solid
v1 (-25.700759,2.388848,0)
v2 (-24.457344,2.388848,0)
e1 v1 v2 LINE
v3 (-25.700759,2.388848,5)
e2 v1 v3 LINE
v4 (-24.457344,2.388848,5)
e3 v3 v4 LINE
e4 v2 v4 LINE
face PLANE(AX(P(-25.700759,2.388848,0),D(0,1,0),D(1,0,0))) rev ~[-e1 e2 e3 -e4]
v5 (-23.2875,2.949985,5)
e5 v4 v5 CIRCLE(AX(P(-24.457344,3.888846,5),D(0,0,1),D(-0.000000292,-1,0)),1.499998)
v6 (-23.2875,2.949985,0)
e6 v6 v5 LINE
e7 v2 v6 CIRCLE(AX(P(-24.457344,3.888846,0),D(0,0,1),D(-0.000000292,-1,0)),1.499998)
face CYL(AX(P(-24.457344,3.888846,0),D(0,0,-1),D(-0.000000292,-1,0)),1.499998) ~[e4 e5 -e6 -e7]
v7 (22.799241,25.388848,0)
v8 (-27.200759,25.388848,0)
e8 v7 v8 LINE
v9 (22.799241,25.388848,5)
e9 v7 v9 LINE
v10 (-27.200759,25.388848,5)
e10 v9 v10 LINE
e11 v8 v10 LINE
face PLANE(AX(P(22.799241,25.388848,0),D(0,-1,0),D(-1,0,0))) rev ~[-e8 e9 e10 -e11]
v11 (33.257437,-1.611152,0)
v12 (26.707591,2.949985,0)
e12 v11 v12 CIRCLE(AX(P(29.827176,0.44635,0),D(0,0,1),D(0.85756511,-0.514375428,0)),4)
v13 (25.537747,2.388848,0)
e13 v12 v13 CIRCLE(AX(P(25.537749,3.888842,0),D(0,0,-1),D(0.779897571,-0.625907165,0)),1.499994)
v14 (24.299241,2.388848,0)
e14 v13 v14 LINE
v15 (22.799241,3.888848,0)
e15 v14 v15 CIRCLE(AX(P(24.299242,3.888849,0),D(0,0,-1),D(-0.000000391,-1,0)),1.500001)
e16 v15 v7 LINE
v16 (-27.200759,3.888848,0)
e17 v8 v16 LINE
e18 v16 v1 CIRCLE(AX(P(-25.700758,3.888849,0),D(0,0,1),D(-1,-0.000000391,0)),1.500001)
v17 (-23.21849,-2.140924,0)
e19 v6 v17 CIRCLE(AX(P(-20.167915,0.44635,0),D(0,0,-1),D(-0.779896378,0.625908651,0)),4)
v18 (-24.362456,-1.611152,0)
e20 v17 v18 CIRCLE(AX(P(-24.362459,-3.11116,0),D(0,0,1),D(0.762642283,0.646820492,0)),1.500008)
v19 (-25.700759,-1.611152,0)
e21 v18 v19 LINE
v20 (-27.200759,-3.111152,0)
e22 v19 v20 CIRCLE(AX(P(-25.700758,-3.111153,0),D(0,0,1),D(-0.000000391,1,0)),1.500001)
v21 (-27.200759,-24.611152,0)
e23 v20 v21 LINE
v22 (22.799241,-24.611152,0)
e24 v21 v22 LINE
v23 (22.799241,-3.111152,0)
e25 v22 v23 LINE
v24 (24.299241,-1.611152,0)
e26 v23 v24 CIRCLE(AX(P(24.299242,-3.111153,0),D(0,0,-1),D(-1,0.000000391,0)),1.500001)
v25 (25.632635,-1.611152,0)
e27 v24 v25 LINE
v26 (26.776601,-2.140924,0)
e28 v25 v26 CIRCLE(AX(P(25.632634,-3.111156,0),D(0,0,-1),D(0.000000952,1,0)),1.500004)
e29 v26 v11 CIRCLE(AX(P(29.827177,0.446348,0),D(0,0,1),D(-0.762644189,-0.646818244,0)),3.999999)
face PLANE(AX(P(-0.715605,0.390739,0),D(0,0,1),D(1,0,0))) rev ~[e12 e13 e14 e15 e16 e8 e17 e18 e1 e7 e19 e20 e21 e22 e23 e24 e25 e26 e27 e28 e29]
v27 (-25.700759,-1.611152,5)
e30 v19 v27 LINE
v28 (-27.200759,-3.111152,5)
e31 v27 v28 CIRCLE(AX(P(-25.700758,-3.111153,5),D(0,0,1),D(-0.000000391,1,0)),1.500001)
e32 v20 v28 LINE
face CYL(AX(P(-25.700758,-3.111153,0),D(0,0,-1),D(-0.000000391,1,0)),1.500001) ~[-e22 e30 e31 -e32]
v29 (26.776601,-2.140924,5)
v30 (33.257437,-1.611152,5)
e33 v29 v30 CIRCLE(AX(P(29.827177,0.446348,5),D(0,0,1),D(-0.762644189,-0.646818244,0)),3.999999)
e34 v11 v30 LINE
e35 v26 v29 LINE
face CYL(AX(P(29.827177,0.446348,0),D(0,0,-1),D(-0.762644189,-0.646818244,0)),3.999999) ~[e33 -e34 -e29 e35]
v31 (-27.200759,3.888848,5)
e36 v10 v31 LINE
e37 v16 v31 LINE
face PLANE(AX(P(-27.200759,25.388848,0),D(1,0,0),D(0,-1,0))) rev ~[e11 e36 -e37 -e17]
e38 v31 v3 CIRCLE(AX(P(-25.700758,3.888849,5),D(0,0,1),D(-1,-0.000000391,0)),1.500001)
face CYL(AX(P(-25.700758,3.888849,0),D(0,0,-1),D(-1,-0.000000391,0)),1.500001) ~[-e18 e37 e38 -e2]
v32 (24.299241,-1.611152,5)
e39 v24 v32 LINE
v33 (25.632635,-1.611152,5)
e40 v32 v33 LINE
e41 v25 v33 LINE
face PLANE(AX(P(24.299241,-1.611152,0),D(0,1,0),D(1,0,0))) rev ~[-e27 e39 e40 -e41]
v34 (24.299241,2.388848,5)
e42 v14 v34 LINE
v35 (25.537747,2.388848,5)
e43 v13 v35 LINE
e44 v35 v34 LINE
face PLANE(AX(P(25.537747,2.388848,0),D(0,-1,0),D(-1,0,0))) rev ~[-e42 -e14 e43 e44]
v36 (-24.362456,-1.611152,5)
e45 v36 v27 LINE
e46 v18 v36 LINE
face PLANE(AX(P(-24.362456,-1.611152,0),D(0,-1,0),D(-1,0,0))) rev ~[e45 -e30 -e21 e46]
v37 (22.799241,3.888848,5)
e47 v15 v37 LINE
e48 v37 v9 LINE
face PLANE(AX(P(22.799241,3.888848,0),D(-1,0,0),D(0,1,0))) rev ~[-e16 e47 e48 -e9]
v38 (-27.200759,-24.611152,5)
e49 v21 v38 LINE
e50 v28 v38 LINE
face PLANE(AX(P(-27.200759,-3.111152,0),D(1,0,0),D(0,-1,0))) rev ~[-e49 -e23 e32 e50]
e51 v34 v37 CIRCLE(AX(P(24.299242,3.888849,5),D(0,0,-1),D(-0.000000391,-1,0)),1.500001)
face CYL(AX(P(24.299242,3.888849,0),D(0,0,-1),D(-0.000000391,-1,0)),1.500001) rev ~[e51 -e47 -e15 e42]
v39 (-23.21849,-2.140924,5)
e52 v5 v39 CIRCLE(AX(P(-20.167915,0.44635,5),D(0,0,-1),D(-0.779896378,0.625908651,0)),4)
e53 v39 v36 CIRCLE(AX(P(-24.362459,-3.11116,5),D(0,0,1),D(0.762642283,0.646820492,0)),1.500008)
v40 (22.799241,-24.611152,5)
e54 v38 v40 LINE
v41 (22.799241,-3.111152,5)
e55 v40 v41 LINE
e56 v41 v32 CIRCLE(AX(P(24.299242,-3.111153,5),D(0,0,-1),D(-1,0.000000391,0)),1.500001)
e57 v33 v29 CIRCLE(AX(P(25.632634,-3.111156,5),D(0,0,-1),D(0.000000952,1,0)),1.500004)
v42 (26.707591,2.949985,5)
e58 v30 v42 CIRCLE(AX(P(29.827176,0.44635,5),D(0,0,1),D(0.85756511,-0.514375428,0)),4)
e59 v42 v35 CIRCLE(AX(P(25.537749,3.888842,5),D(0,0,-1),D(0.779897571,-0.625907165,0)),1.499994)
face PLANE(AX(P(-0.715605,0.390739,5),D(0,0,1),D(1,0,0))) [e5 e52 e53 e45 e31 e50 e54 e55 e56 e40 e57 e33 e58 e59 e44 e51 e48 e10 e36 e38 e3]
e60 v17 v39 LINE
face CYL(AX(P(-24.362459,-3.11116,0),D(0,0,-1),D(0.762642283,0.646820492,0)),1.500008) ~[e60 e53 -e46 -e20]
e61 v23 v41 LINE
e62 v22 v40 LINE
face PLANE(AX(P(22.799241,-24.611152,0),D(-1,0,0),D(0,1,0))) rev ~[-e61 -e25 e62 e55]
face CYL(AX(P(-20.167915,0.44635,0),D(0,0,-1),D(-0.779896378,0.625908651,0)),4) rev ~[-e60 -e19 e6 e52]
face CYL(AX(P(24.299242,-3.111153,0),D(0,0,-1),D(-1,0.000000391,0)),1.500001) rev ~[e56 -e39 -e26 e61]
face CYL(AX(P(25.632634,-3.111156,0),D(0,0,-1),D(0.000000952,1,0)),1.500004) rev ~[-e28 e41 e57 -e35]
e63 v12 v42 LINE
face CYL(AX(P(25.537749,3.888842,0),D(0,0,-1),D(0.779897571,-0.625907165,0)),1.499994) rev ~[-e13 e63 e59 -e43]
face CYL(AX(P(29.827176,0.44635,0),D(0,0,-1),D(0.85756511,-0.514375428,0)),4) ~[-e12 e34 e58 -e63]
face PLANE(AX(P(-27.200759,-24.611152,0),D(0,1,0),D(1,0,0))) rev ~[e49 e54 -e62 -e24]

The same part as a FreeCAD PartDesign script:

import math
import FreeCAD as App
import Part
import Sketcher
from FreeCAD import Vector

doc = App.newDocument("Part")
params = doc.addObject("Spreadsheet::Sheet", "Params")
for row, (alias, value) in enumerate([
    ("sketch1_radius", "3.999999 mm"),
    ("sketch1_radius2", "1.500001 mm"),
    ("sketch1_width", "50 mm"),
    ("sketch1_height", "21.5 mm"),
    ("pad1_length", "5 mm"),
], start=1):
    params.set(f"A{row}", alias)
    params.set(f"B{row}", "=" + value)
    params.setAlias(f"B{row}", alias)

body = doc.addObject("PartDesign::Body", "Body")

# Sketch on XY plane
sketch1 = body.newObject("Sketcher::SketchObject", "Sketch")
sketch1.AttachmentSupport = (doc.getObject("XY_Plane"), [""])
sketch1.MapMode = "FlatFace"
sketch1.addGeometry([
    Part.LineSegment(Vector(-27.2, -24.6, 0), Vector(22.8, -24.6, 0)),  # 0
    Part.LineSegment(Vector(22.8, -24.6, 0), Vector(22.8, -3.1, 0)),  # 1
    Part.ArcOfCircle(Part.Circle(Vector(24.3, -3.1, 0), Vector(0, 0, 1), 1.5), math.radians(90), math.radians(180)),  # 2
    Part.LineSegment(Vector(24.3, -1.6, 0), Vector(25.6, -1.6, 0)),  # 3
    Part.ArcOfCircle(Part.Circle(Vector(25.6, -3.1, 0), Vector(0, 0, 1), 1.5), math.radians(40), math.radians(90)),  # 4
    Part.ArcOfCircle(Part.Circle(Vector(29.8, 0.4, 0), Vector(0, 0, 1), 4), math.radians(-140), math.radians(-31)),  # 5
    Part.ArcOfCircle(Part.Circle(Vector(29.8, 0.4, 0), Vector(0, 0, 1), 4), math.radians(-31), math.radians(141)),  # 6
    Part.ArcOfCircle(Part.Circle(Vector(25.5, 3.9, 0), Vector(0, 0, 1), 1.5), math.radians(-90), math.radians(-39)),  # 7
    Part.LineSegment(Vector(25.5, 2.4, 0), Vector(24.3, 2.4, 0)),  # 8
    Part.ArcOfCircle(Part.Circle(Vector(24.3, 3.9, 0), Vector(0, 0, 1), 1.5), math.radians(-180), math.radians(-90)),  # 9
    Part.LineSegment(Vector(22.8, 3.9, 0), Vector(22.8, 25.4, 0)),  # 10
    Part.LineSegment(Vector(22.8, 25.4, 0), Vector(-27.2, 25.4, 0)),  # 11
    Part.LineSegment(Vector(-27.2, 25.4, 0), Vector(-27.2, 3.9, 0)),  # 12
    Part.ArcOfCircle(Part.Circle(Vector(-25.7, 3.9, 0), Vector(0, 0, 1), 1.5), math.radians(-180), math.radians(-90)),  # 13
    Part.LineSegment(Vector(-25.7, 2.4, 0), Vector(-24.5, 2.4, 0)),  # 14
    Part.ArcOfCircle(Part.Circle(Vector(-24.5, 3.9, 0), Vector(0, 0, 1), 1.5), math.radians(-90), math.radians(-39)),  # 15
    Part.ArcOfCircle(Part.Circle(Vector(-20.2, 0.4, 0), Vector(0, 0, 1), 4), math.radians(-140), math.radians(141)),  # 16
    Part.ArcOfCircle(Part.Circle(Vector(-24.4, -3.1, 0), Vector(0, 0, 1), 1.5), math.radians(40), math.radians(90)),  # 17
    Part.LineSegment(Vector(-24.4, -1.6, 0), Vector(-25.7, -1.6, 0)),  # 18
    Part.ArcOfCircle(Part.Circle(Vector(-25.7, -3.1, 0), Vector(0, 0, 1), 1.5), math.radians(90), math.radians(180)),  # 19
    Part.LineSegment(Vector(-27.2, -3.1, 0), Vector(-27.2, -24.6, 0)),  # 20
], False)
sketch1.addConstraint([
    Sketcher.Constraint("Coincident", 0, 2, 1, 1),
    Sketcher.Constraint("Tangent", 1, 2, 2, 2),
    Sketcher.Constraint("Tangent", 2, 1, 3, 1),
    Sketcher.Constraint("Tangent", 3, 2, 4, 2),
    Sketcher.Constraint("Tangent", 4, 1, 5, 1),
    Sketcher.Constraint("Tangent", 5, 2, 6, 1),
    Sketcher.Constraint("Coincident", 6, 2, 7, 2),
    Sketcher.Constraint("Tangent", 7, 1, 8, 1),
    Sketcher.Constraint("Tangent", 8, 2, 9, 2),
    Sketcher.Constraint("Tangent", 9, 1, 10, 1),
    Sketcher.Constraint("Coincident", 10, 2, 11, 1),
    Sketcher.Constraint("Coincident", 11, 2, 12, 1),
    Sketcher.Constraint("Tangent", 12, 2, 13, 1),
    Sketcher.Constraint("Tangent", 13, 2, 14, 1),
    Sketcher.Constraint("Tangent", 14, 2, 15, 1),
    Sketcher.Constraint("Tangent", 15, 2, 16, 2),
    Sketcher.Constraint("Coincident", 16, 1, 17, 1),
    Sketcher.Constraint("Coincident", 17, 2, 18, 1),
    Sketcher.Constraint("Tangent", 18, 2, 19, 1),
    Sketcher.Constraint("Tangent", 19, 2, 20, 1),
    Sketcher.Constraint("Coincident", 20, 2, 0, 1),
    Sketcher.Constraint("Horizontal", 0),
    Sketcher.Constraint("Vertical", 1),
    Sketcher.Constraint("Horizontal", 3),
    Sketcher.Constraint("Horizontal", 8),
    Sketcher.Constraint("Vertical", 10),
    Sketcher.Constraint("Horizontal", 11),
    Sketcher.Constraint("Vertical", 12),
    Sketcher.Constraint("Horizontal", 14),
    Sketcher.Constraint("Horizontal", 18),
    Sketcher.Constraint("Vertical", 20),
    Sketcher.Constraint("Equal", 5, 6),
    Sketcher.Constraint("Equal", 2, 9),
    Sketcher.Constraint("Equal", 9, 13),
    Sketcher.Constraint("Equal", 6, 16),
    Sketcher.Constraint("Equal", 13, 19),
    Sketcher.Constraint("Horizontal", 9, 3, 13, 3),
    Sketcher.Constraint("Horizontal", 6, 3, 16, 3),
    Sketcher.Constraint("Horizontal", 2, 3, 19, 3),
    Sketcher.Constraint("Horizontal", 3, 2, 5, 2),
    Sketcher.Constraint("Horizontal", 6, 2, 15, 2),
    Sketcher.Constraint("Horizontal", 4, 1, 16, 1),
    Sketcher.Constraint("Vertical", 2, 3, 9, 3),
    Sketcher.Constraint("Vertical", 13, 3, 19, 3),
    Sketcher.Constraint("Equal", 1, 10),
    Sketcher.Constraint("Radius", 5, 3.999999),
    Sketcher.Constraint("Radius", 2, 1.500001),
    Sketcher.Constraint("DistanceX", 0, 1, 0, 2, 50.0),
    Sketcher.Constraint("DistanceY", 1, 1, 1, 2, 21.5),
    Sketcher.Constraint("DistanceY", 2, 3, 9, 3, 7.000001),
    Sketcher.Constraint("DistanceY", 2, 3, 15, 3, 6.999999),
    Sketcher.Constraint("DistanceY", 4, 3, 15, 3, 7.000002),
    Sketcher.Constraint("Radius", 7, 1.499994),
    Sketcher.Constraint("Radius", 17, 1.500008),
    Sketcher.Constraint("DistanceX", -1, 1, 4, 1, 26.776601),
    Sketcher.Constraint("DistanceX", 15, 2, -1, 1, 23.2875),
    Sketcher.Constraint("DistanceY", 2, 3, 5, 3, 3.557501),
    Sketcher.Constraint("DistanceX", 13, 3, 17, 3, 1.338299),
    Sketcher.Constraint("DistanceX", 18, 2, 18, 1, 1.338303),
    Sketcher.Constraint("DistanceY", -1, 1, 5, 3, 0.446348),
])
sketch1.setExpression("Constraints[45]", "Params.sketch1_radius")
sketch1.setExpression("Constraints[46]", "Params.sketch1_radius2")
sketch1.setExpression("Constraints[47]", "Params.sketch1_width")
sketch1.setExpression("Constraints[48]", "Params.sketch1_height")
pad1 = body.newObject("PartDesign::Pad", "Pad")
pad1.Profile = sketch1
pad1.setExpression("Length", "Params.pad1_length")

doc.recompute()
